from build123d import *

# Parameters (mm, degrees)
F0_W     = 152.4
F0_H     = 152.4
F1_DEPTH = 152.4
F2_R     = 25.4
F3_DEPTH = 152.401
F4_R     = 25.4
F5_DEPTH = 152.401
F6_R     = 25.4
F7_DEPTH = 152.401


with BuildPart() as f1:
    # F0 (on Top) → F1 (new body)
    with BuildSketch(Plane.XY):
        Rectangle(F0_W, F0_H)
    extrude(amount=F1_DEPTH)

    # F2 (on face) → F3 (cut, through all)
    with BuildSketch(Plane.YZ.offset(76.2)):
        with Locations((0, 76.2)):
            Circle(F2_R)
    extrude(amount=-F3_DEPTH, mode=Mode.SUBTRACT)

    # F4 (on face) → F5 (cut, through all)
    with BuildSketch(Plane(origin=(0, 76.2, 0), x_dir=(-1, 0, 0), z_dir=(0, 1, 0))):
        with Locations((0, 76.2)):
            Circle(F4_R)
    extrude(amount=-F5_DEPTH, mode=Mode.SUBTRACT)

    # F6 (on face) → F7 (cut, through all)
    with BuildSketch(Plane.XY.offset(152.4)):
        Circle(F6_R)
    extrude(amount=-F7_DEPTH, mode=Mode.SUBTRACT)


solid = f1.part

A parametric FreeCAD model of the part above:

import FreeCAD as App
import Part
import Sketcher
Q = App.Units.Quantity


def add_polygon(sketch, points):
    """Adds a closed chain of lines whose ends are joined by coincident constraints."""
    first, n = sketch.GeometryCount, len(points)
    for a, b in zip(points, points[1:] + points[:1]):
        sketch.addGeometry(Part.LineSegment(App.Vector(*a, 0), App.Vector(*b, 0)), False)
    for i in range(n):
        sketch.addConstraint(Sketcher.Constraint("Coincident", first + i, 2, first + (i + 1) % n, 1))

doc = App.newDocument("Part")
params = doc.addObject("Spreadsheet::Sheet", "Params")
for row, (alias, value) in enumerate([
    ("sketch1_width", "6 in"),
    ("pad1_length", "6 in"),
    ("sketch2_diameter", "2 in"),
    ("sketch3_diameter", "2 in"),
    ("sketch4_diameter", "2 in"),
], start=1):
    params.set(f"A{row}", alias)
    params.set(f"B{row}", "=" + value)
    params.setAlias(f"B{row}", alias)

body = doc.addObject("PartDesign::Body", "Body")

# Sketch on XY plane
sketch1 = doc.addObject("Sketcher::SketchObject", "Sketch")
body.addObject(sketch1)
sketch1.AttachmentSupport = (doc.XY_Plane, [""])
sketch1.MapMode = "FlatFace"
add_polygon(sketch1, [(-76, 76), (-76, -76), (76, -76), (76, 76)])  # lines 0-3
sketch1.addConstraint(Sketcher.Constraint("Vertical", 0))
sketch1.addConstraint(Sketcher.Constraint("Horizontal", 1))
sketch1.addConstraint(Sketcher.Constraint("Vertical", 2))
sketch1.addConstraint(Sketcher.Constraint("Horizontal", 3))
sketch1.addConstraint(Sketcher.Constraint("Symmetric", 0, 2, 2, 2, -1, 1))
sketch1.addConstraint(Sketcher.Constraint("Equal", 3, 0))
sketch1.addConstraint(Sketcher.Constraint("DistanceX", 1, 1, 1, 2, Q("6 in")))
sketch1.setExpression("Constraints[10]", "Params.sketch1_width")
pad1 = doc.addObject("PartDesign::Pad", "Pad")
body.addObject(pad1)
pad1.Profile = sketch1
pad1.setExpression("Length", "Params.pad1_length")

# Sketch on YZ plane
sketch2 = doc.addObject("Sketcher::SketchObject", "Sketch001")
body.addObject(sketch2)
sketch2.AttachmentSupport = (doc.YZ_Plane, [""])
sketch2.MapMode = "FlatFace"
sketch2.AttachmentOffset = App.Placement(App.Vector(0, 0, 3 * 25.4), App.Rotation())
sketch2.addGeometry(Part.Circle(App.Vector(0, 76, 0), App.Vector(0, 0, 1), 25), False)
sketch2.addConstraint(Sketcher.Constraint("PointOnObject", 0, 3, -2))
sketch2.addConstraint(Sketcher.Constraint("Diameter", 0, Q("2 in")))
sketch2.addConstraint(Sketcher.Constraint("DistanceY", -1, 1, 0, 3, Q("3 in")))
sketch2.setExpression("Constraints[1]", "Params.sketch2_diameter")
pocket1 = doc.addObject("PartDesign::Pocket", "Pocket")
body.addObject(pocket1)
pocket1.Profile = sketch2
pocket1.Type = "ThroughAll"

# Sketch on XZ plane
sketch3 = doc.addObject("Sketcher::SketchObject", "Sketch002")
body.addObject(sketch3)
sketch3.AttachmentSupport = (doc.XZ_Plane, [""])
sketch3.MapMode = "FlatFace"
sketch3.AttachmentOffset = App.Placement(App.Vector(0, 0, -3 * 25.4), App.Rotation())
sketch3.addGeometry(Part.Circle(App.Vector(0, 76, 0), App.Vector(0, 0, 1), 25), False)
sketch3.addConstraint(Sketcher.Constraint("PointOnObject", 0, 3, -2))
sketch3.addConstraint(Sketcher.Constraint("Diameter", 0, Q("2 in")))
sketch3.addConstraint(Sketcher.Constraint("DistanceY", -1, 1, 0, 3, Q("3 in")))
sketch3.setExpression("Constraints[1]", "Params.sketch3_diameter")
pocket2 = doc.addObject("PartDesign::Pocket", "Pocket001")
body.addObject(pocket2)
pocket2.Profile = sketch3
pocket2.Type = "ThroughAll"
pocket2.Reversed = True

# Sketch on XY plane
sketch4 = doc.addObject("Sketcher::SketchObject", "Sketch003")
body.addObject(sketch4)
sketch4.AttachmentSupport = (doc.XY_Plane, [""])
sketch4.MapMode = "FlatFace"
sketch4.AttachmentOffset = App.Placement(App.Vector(0, 0, 6 * 25.4), App.Rotation())
sketch4.addGeometry(Part.Circle(App.Vector(0, 0, 0), App.Vector(0, 0, 1), 25), False)
sketch4.addConstraint(Sketcher.Constraint("Coincident", 0, 3, -1, 1))
sketch4.addConstraint(Sketcher.Constraint("Diameter", 0, Q("2 in")))
sketch4.setExpression("Constraints[1]", "Params.sketch4_diameter")
pocket3 = doc.addObject("PartDesign::Pocket", "Pocket002")
body.addObject(pocket3)
pocket3.Profile = sketch4
pocket3.Type = "ThroughAll"

doc.recompute()
